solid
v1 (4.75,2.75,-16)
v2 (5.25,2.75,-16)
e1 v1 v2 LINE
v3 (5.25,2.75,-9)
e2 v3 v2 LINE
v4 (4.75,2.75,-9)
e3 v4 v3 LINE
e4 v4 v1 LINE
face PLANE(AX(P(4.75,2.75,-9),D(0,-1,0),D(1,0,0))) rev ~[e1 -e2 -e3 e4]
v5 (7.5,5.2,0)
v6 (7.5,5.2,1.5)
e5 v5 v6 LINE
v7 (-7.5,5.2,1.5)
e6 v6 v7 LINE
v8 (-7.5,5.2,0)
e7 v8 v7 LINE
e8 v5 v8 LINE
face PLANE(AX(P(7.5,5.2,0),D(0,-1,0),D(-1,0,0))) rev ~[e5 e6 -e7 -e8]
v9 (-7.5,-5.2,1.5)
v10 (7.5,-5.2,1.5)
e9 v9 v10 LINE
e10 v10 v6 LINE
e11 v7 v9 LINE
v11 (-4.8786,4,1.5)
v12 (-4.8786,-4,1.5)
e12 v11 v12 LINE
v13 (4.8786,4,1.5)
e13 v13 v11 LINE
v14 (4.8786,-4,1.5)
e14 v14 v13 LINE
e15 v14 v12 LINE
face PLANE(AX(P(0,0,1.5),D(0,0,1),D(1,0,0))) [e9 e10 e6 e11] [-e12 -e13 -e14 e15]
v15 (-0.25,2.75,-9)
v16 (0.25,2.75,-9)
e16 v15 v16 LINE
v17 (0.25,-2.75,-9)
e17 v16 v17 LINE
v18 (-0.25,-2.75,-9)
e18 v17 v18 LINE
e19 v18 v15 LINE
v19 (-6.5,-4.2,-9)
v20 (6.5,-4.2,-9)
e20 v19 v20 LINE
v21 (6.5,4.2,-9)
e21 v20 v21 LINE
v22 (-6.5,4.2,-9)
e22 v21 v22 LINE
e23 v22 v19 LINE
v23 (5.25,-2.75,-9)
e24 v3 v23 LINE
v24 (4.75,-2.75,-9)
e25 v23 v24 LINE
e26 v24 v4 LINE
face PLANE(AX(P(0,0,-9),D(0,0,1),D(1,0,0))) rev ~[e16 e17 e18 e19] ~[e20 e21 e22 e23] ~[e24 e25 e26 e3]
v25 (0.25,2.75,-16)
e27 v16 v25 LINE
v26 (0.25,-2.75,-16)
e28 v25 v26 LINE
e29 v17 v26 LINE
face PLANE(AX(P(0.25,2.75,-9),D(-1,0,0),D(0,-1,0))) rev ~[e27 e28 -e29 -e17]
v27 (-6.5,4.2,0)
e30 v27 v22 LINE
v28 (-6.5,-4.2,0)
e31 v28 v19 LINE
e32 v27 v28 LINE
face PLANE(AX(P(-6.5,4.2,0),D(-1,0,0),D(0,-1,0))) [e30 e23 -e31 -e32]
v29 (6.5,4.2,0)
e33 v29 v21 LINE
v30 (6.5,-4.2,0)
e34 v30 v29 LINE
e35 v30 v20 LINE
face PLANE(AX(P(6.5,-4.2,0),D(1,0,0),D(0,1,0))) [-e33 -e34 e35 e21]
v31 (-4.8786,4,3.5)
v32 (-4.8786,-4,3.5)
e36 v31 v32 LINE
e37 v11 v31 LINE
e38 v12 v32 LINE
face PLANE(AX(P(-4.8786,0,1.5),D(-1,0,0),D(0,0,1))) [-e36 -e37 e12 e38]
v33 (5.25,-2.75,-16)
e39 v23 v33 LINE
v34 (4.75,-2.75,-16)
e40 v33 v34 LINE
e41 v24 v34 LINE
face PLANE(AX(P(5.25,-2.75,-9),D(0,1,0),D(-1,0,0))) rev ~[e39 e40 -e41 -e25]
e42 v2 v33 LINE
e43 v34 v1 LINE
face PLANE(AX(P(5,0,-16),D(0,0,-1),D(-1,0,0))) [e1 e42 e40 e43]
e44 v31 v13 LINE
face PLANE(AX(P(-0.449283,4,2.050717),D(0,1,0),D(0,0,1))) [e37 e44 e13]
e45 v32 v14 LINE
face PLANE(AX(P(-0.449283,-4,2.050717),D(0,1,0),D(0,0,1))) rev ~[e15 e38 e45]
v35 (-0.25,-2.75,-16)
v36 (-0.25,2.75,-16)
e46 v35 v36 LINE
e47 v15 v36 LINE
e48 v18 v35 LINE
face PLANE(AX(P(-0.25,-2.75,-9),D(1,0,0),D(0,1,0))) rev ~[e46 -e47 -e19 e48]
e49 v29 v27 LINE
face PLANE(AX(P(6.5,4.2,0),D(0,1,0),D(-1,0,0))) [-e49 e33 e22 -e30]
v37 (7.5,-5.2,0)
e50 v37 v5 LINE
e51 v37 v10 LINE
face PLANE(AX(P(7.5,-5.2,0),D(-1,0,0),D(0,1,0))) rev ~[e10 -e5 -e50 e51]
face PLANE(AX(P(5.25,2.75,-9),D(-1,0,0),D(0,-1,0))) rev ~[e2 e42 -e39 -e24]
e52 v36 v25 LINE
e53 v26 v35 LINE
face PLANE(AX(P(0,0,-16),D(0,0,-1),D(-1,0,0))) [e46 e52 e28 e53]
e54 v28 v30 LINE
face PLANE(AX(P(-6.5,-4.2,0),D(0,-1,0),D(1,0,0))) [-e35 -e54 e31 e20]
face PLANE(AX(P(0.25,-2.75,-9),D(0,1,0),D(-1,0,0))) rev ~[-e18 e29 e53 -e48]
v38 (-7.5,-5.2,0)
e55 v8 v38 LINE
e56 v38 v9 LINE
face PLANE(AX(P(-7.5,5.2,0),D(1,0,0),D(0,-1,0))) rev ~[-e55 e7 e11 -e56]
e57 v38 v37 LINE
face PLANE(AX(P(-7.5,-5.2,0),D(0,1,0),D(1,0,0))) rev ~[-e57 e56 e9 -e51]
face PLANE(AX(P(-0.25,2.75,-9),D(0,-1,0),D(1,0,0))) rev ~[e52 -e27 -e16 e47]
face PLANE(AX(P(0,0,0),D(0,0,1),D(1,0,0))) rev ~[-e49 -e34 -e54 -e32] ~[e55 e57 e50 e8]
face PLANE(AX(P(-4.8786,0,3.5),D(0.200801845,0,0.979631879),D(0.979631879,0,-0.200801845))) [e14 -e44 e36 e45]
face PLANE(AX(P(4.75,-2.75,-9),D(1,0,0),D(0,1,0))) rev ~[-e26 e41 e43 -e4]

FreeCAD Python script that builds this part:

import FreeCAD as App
import Part
import Sketcher

doc = App.newDocument("Part")
body = doc.addObject("PartDesign::Body", "Body")

# Sketch on XY plane
sketch1 = body.newObject("Sketcher::SketchObject", "Sketch")
sketch1.AttachmentSupport = (doc.getObject("XY_Plane"), [""])
sketch1.MapMode = "FlatFace"
sketch1.addGeometry([
    Part.LineSegment(App.Vector(-8, -5, 0), App.Vector(8, -5, 0)),
    Part.LineSegment(App.Vector(8, -5, 0), App.Vector(8, 5, 0)),
    Part.LineSegment(App.Vector(8, 5, 0), App.Vector(-8, 5, 0)),
    Part.LineSegment(App.Vector(-8, 5, 0), App.Vector(-8, -5, 0)),
], False)
sketch1.addConstraint([
    Sketcher.Constraint("Coincident", 0, 2, 1, 1),
    Sketcher.Constraint("Coincident", 1, 2, 2, 1),
    Sketcher.Constraint("Coincident", 2, 2, 3, 1),
    Sketcher.Constraint("Coincident", 3, 2, 0, 1),
    Sketcher.Constraint("Horizontal", 0),
    Sketcher.Constraint("Vertical", 1),
    Sketcher.Constraint("Horizontal", 2),
    Sketcher.Constraint("Vertical", 3),
    Sketcher.Constraint("Symmetric", 0, 2, 2, 2, -1, 1),
    Sketcher.Constraint("DistanceX", 0, 1, 0, 2, 15.0),
    Sketcher.Constraint("DistanceY", 1, 1, 1, 2, 10.4),
])
pad1 = body.newObject("PartDesign::Pad", "Pad")
pad1.Profile = sketch1
pad1.Length = 1.5

# Sketch on XY plane
sketch2 = body.newObject("Sketcher::SketchObject", "Sketch001")
sketch2.AttachmentSupport = (doc.getObject("XY_Plane"), [""])
sketch2.MapMode = "FlatFace"
sketch2.addGeometry([
    Part.LineSegment(App.Vector(6, -4, 0), App.Vector(6, 4, 0)),
    Part.LineSegment(App.Vector(6, 4, 0), App.Vector(-6, 4, 0)),
    Part.LineSegment(App.Vector(-6, 4, 0), App.Vector(-6, -4, 0)),
    Part.LineSegment(App.Vector(-6, -4, 0), App.Vector(6, -4, 0)),
], False)
sketch2.addConstraint([
    Sketcher.Constraint("Coincident", 0, 2, 1, 1),
    Sketcher.Constraint("Coincident", 1, 2, 2, 1),
    Sketcher.Constraint("Coincident", 2, 2, 3, 1),
    Sketcher.Constraint("Coincident", 3, 2, 0, 1),
    Sketcher.Constraint("Vertical", 0),
    Sketcher.Constraint("Horizontal", 1),
    Sketcher.Constraint("Vertical", 2),
    Sketcher.Constraint("Horizontal", 3),
    Sketcher.Constraint("Symmetric", 0, 2, 2, 2, -1, 1),
    Sketcher.Constraint("DistanceX", 1, 2, 1, 1, 13.0),
    Sketcher.Constraint("DistanceY", 0, 1, 0, 2, 8.4),
])
pad2 = body.newObject("PartDesign::Pad", "Pad001")
pad2.Profile = sketch2
pad2.Length = 9
pad2.Reversed = True

# Sketch on XY plane
sketch3 = body.newObject("Sketcher::SketchObject", "Sketch002")
sketch3.AttachmentSupport = (doc.getObject("XY_Plane"), [""])
sketch3.MapMode = "FlatFace"
sketch3.AttachmentOffset = App.Placement(App.Vector(0, 0, -9), App.Rotation())
sketch3.addGeometry([
    Part.LineSegment(App.Vector(0.2, -2.8, 0), App.Vector(-0.2, -2.8, 0)),  # 0
    Part.LineSegment(App.Vector(-0.2, -2.8, 0), App.Vector(-0.2, 2.8, 0)),  # 1
    Part.LineSegment(App.Vector(-0.2, 2.8, 0), App.Vector(0.2, 2.8, 0)),  # 2
    Part.LineSegment(App.Vector(0.2, 2.8, 0), App.Vector(0.2, -2.8, 0)),  # 3
    Part.LineSegment(App.Vector(4.8, 2.8, 0), App.Vector(5.2, 2.8, 0)),  # 4
    Part.LineSegment(App.Vector(5.2, 2.8, 0), App.Vector(5.2, -2.8, 0)),  # 5
    Part.LineSegment(App.Vector(5.2, -2.8, 0), App.Vector(4.8, -2.8, 0)),  # 6
    Part.LineSegment(App.Vector(4.8, -2.8, 0), App.Vector(4.8, 2.8, 0)),  # 7
], False)
sketch3.addConstraint([
    Sketcher.Constraint("Coincident", 0, 2, 1, 1),
    Sketcher.Constraint("Coincident", 1, 2, 2, 1),
    Sketcher.Constraint("Coincident", 2, 2, 3, 1),
    Sketcher.Constraint("Coincident", 3, 2, 0, 1),
    Sketcher.Constraint("Coincident", 4, 2, 5, 1),
    Sketcher.Constraint("Coincident", 5, 2, 6, 1),
    Sketcher.Constraint("Coincident", 6, 2, 7, 1),
    Sketcher.Constraint("Coincident", 7, 2, 4, 1),
    Sketcher.Constraint("Horizontal", 0),
    Sketcher.Constraint("Vertical", 1),
    Sketcher.Constraint("Horizontal", 2),
    Sketcher.Constraint("Vertical", 3),
    Sketcher.Constraint("Horizontal", 4),
    Sketcher.Constraint("Vertical", 5),
    Sketcher.Constraint("Horizontal", 6),
    Sketcher.Constraint("Vertical", 7),
    Sketcher.Constraint("Symmetric", 0, 2, 2, 2, -1, 1),
    Sketcher.Constraint("Horizontal", 2, 2, 4, 2),
    Sketcher.Constraint("Horizontal", 3, 2, 5, 2),
    Sketcher.Constraint("Equal", 2, 4),
    Sketcher.Constraint("DistanceX", 0, 2, 0, 1, 0.5),
    Sketcher.Constraint("DistanceY", 1, 1, 1, 2, 5.5),
    Sketcher.Constraint("DistanceX", 2, 2, 4, 2, 5.0),
])
pad3 = body.newObject("PartDesign::Pad", "Pad002")
pad3.Profile = sketch3
pad3.Length = 7
pad3.Reversed = True

# Sketch on XZ plane
sketch4 = body.newObject("Sketcher::SketchObject", "Sketch003")
sketch4.AttachmentSupport = (doc.getObject("XZ_Plane"), [""])
sketch4.MapMode = "FlatFace"
sketch4.addGeometry([
    Part.LineSegment(App.Vector(4.9, 1.5, 0), App.Vector(-4.9, 3.5, 0)),
    Part.LineSegment(App.Vector(-4.9, 3.5, 0), App.Vector(-4.9, 1.5, 0)),
    Part.LineSegment(App.Vector(-4.9, 1.5, 0), App.Vector(4.9, 1.5, 0)),
], False)
sketch4.addConstraint([
    Sketcher.Constraint("Coincident", 0, 2, 1, 1),
    Sketcher.Constraint("Coincident", 1, 2, 2, 1),
    Sketcher.Constraint("Coincident", 2, 2, 0, 1),
    Sketcher.Constraint("Vertical", 1),
    Sketcher.Constraint("Horizontal", 2),
    Sketcher.Constraint("DistanceY", 1, 2, 1, 1, 2.0),
    Sketcher.Constraint("DistanceY", -1, 1, 0, 2, 3.5),
    Sketcher.Constraint("Distance", 0, 9.96),
    Sketcher.Constraint("DistanceX", 0, 2, -1, 1, 4.8786),
])
pad4 = body.newObject("PartDesign::Pad", "Pad003")
pad4.Profile = sketch4
pad4.Length = 8
pad4.Midplane = True

doc.recompute()
